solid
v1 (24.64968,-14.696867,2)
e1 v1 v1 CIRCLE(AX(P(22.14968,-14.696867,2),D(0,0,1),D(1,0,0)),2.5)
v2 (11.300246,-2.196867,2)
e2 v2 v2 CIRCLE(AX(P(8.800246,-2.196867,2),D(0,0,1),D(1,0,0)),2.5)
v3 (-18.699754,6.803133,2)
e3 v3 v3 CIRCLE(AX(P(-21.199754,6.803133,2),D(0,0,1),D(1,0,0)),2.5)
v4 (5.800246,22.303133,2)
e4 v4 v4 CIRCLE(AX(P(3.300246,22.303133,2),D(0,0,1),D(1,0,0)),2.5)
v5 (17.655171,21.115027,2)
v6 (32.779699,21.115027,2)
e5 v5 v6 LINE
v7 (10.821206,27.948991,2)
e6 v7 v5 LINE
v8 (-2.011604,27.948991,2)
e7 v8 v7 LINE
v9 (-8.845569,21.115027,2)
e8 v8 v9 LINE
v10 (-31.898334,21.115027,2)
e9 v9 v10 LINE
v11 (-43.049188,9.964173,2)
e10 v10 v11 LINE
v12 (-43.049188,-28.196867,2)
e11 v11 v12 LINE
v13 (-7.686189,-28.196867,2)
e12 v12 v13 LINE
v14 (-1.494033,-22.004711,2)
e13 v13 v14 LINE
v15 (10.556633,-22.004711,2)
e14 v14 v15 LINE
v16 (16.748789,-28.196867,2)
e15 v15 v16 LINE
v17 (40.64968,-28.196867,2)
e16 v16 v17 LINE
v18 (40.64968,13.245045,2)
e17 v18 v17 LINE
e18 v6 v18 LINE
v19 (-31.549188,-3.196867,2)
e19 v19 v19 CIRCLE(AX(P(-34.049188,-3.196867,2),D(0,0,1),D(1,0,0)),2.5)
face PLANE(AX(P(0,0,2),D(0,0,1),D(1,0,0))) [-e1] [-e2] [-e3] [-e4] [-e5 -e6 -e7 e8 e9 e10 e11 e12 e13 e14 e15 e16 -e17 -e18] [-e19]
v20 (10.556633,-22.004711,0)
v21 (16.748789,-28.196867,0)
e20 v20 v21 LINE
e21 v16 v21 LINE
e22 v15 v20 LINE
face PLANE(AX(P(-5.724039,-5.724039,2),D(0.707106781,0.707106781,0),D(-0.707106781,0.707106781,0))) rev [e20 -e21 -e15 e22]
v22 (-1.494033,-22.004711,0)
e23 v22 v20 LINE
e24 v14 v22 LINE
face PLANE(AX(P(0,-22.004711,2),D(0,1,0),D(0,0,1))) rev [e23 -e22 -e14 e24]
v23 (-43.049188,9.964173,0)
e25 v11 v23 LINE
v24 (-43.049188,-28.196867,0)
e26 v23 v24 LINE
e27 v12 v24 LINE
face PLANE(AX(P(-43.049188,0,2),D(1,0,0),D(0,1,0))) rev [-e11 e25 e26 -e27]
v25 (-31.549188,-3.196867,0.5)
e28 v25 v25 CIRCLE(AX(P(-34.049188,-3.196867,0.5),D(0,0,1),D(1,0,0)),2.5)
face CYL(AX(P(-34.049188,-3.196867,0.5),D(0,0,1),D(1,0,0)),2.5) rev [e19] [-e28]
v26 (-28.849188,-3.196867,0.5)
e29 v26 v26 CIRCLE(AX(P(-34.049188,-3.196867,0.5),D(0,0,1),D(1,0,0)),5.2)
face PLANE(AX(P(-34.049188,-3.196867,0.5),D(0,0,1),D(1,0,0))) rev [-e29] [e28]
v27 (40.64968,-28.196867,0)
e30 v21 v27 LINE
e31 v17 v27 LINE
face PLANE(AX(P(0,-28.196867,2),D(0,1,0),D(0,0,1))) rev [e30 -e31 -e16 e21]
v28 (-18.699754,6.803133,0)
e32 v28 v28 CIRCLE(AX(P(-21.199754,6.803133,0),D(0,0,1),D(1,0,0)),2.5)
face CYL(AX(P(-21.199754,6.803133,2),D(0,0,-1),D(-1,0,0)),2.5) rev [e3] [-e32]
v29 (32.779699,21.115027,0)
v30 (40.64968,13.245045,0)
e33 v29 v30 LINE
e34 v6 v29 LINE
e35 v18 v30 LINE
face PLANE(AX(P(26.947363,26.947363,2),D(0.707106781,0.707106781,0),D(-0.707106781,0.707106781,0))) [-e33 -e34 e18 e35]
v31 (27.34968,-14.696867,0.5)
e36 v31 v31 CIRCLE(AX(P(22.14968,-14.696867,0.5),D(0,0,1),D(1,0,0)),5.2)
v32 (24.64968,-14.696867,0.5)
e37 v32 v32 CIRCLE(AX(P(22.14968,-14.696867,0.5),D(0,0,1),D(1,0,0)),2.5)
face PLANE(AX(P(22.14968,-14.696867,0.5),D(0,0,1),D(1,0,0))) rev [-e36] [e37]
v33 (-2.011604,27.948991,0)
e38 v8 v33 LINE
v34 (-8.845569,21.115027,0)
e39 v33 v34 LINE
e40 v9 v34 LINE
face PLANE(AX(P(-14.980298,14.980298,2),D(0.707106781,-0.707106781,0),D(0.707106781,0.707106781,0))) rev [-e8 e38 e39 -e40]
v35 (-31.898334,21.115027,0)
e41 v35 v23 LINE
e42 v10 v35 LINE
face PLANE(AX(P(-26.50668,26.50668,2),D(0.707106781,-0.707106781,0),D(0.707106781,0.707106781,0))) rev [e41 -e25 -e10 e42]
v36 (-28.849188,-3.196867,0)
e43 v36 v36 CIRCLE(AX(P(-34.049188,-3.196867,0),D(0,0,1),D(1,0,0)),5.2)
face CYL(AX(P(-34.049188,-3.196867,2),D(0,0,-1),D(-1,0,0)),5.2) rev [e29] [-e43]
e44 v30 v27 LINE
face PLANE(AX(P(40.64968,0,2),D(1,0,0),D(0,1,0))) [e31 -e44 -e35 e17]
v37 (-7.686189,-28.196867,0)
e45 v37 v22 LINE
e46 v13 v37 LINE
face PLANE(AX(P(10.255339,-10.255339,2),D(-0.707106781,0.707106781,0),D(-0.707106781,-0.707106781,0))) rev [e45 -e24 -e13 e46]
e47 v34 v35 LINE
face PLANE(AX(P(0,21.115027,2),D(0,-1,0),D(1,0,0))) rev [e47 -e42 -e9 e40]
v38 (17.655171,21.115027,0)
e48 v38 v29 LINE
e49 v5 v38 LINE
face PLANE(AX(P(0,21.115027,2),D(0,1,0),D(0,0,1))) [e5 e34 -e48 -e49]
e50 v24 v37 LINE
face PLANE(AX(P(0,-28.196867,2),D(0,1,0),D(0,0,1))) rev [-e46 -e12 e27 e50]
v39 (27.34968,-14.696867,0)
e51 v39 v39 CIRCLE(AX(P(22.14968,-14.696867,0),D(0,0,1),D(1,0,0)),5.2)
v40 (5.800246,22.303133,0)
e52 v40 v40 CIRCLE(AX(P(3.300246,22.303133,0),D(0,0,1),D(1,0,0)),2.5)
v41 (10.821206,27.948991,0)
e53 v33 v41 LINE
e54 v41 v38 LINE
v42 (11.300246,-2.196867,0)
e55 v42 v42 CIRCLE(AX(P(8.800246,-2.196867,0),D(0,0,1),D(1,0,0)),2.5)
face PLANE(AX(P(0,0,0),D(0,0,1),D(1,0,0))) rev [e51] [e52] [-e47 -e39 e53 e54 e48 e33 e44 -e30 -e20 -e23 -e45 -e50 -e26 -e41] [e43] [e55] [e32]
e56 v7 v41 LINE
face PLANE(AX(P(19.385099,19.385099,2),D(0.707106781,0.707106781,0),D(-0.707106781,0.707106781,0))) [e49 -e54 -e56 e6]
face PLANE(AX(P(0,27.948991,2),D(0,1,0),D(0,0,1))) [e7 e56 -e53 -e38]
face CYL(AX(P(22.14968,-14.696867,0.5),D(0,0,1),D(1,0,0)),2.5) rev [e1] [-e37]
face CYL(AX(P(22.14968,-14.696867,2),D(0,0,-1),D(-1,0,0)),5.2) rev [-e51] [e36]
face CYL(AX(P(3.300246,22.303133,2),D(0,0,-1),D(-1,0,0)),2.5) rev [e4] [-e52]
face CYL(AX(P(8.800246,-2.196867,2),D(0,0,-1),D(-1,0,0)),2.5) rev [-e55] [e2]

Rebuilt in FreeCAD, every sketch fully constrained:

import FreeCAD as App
import Part
import Sketcher
from FreeCAD import Vector
Q = App.Units.Quantity


def add_polygon(sketch, points):
    """Adds a closed chain of lines whose ends are joined by coincident constraints."""
    first, n = sketch.GeometryCount, len(points)
    for a, b in zip(points, points[1:] + points[:1]):
        sketch.addGeometry(Part.LineSegment(App.Vector(*a, 0), App.Vector(*b, 0)), False)
    for i in range(n):
        sketch.addConstraint(Sketcher.Constraint("Coincident", first + i, 2, first + (i + 1) % n, 1))

doc = App.newDocument("Part")
body = doc.addObject("PartDesign::Body", "Body")

# Sketch on XY plane
sketch1 = body.newObject("Sketcher::SketchObject", "Sketch")
sketch1.AttachmentSupport = (doc.getObject("XY_Plane"), [""])
sketch1.MapMode = "FlatFace"
add_polygon(sketch1, [(32.8, 21.1), (17.7, 21.1), (10.8, 27.9), (-2, 27.9), (-8.8, 21.1), (-31.9, 21.1), (-43, 10), (-43, -28.2), (-7.7, -28.2), (-1.5, -22), (10.6, -22), (16.7, -28.2), (40.6, -28.2), (40.6, 13.2)])  # lines 0-13
sketch1.addGeometry(Part.Circle(Vector(22.1, -14.7, 0), Vector(0, 0, 1), 5.2), False)  # 14
sketch1.addGeometry(Part.Circle(Vector(8.8, -2.2, 0), Vector(0, 0, 1), 2.5), False)  # 15
sketch1.addGeometry(Part.Circle(Vector(-34, -3.2, 0), Vector(0, 0, 1), 5.2), False)  # 16
sketch1.addGeometry(Part.Circle(Vector(3.3, 22.3, 0), Vector(0, 0, 1), 2.5), False)  # 17
sketch1.addGeometry(Part.Circle(Vector(-21.2, 6.8, 0), Vector(0, 0, 1), 2.5), False)  # 18
sketch1.addConstraint([
    Sketcher.Constraint("Horizontal", 0),
    Sketcher.Constraint("Horizontal", 2),
    Sketcher.Constraint("Horizontal", 4),
    Sketcher.Constraint("Vertical", 6),
    Sketcher.Constraint("Horizontal", 7),
    Sketcher.Constraint("Horizontal", 9),
    Sketcher.Constraint("Horizontal", 11),
    Sketcher.Constraint("Vertical", 12),
    Sketcher.Constraint("Equal", 14, 16),
    Sketcher.Constraint("Equal", 15, 17),
    Sketcher.Constraint("Equal", 17, 18),
    Sketcher.Constraint("Perpendicular", 1, 3),
    Sketcher.Constraint("Parallel", 3, 5),
    Sketcher.Constraint("Parallel", 5, 8),
    Sketcher.Constraint("Perpendicular", 8, 10),
    Sketcher.Constraint("Parallel", 10, 13),
    Sketcher.Constraint("Horizontal", 0, 2, 3, 2),
    Sketcher.Constraint("Horizontal", 7, 2, 10, 2),
    Sketcher.Constraint("Equal", 1, 3),
    Sketcher.Constraint("Diameter", 15, Q("5 mm")),
    Sketcher.Constraint("Diameter", 14, Q("10.4 mm")),
    Sketcher.Constraint("DistanceY", 16, 3, 15, 3, Q("1 mm")),
    Sketcher.Constraint("DistanceY", 14, 3, 17, 3, Q("37 mm")),
    Sketcher.Constraint("DistanceY", 16, 3, 18, 3, Q("10 mm")),
    Sketcher.Constraint("DistanceX", 18, 3, 15, 3, Q("30 mm")),
    Sketcher.Constraint("DistanceX", 5, 2, 16, 3, Q("9 mm")),
    Sketcher.Constraint("DistanceY", 6, 2, 16, 3, Q("25 mm")),
    Sketcher.Constraint("DistanceY", 14, 3, 15, 3, Q("12.5 mm")),
    Sketcher.Constraint("DistanceX", 17, 3, 15, 3, Q("5.5 mm")),
    Sketcher.Constraint("DistanceX", 14, 3, 11, 2, Q("18.5 mm")),
    Sketcher.Constraint("DistanceX", 7, 1, 7, 2, Q("35.362998 mm")),
    Sketcher.Constraint("DistanceX", 2, 2, 2, 1, Q("12.832811 mm")),
    Sketcher.Constraint("DistanceX", 11, 1, 11, 2, Q("23.900891 mm")),
    Sketcher.Constraint("DistanceY", 6, 2, 6, 1, Q("38.16104 mm")),
    Sketcher.Constraint("DistanceX", -1, 1, 13, 2, Q("32.779699 mm")),
    Sketcher.Constraint("Distance", 5, Q("15.769689 mm")),
    Sketcher.Constraint("Distance", 8, Q("8.757031 mm")),
    Sketcher.Constraint("DistanceX", 0, 2, 0, 1, Q("15.124528 mm")),
    Sketcher.Constraint("DistanceX", 4, 2, 4, 1, Q("23.052765 mm")),
    Sketcher.Constraint("DistanceX", 9, 1, 9, 2, Q("12.050667 mm")),
    Sketcher.Constraint("DistanceY", 12, 1, 12, 2, Q("41.441913 mm")),
    Sketcher.Constraint("DistanceY", -1, 1, 1, 2, Q("27.948991 mm")),
    Sketcher.Constraint("DistanceX", 17, 3, 1, 2, Q("7.52096 mm")),
])
pad1 = body.newObject("PartDesign::Pad", "Pad")
pad1.Profile = sketch1
pad1.Length = 2

# Sketch on XY plane
sketch2 = body.newObject("Sketcher::SketchObject", "Sketch001")
sketch2.AttachmentSupport = (doc.getObject("XY_Plane"), [""])
sketch2.MapMode = "FlatFace"
sketch2.AttachmentOffset = App.Placement(Vector(0, 0, 0.5), App.Rotation())
sketch2.addGeometry([
    Part.Circle(Vector(-34, -3.2, 0), Vector(0, 0, 1), 5.2),
    Part.Circle(Vector(-34, -3.2, 0), Vector(0, 0, 1), 2.5),
    Part.Circle(Vector(22.1, -14.7, 0), Vector(0, 0, 1), 5.2),
    Part.Circle(Vector(22.1, -14.7, 0), Vector(0, 0, 1), 2.5),
], False)
sketch2.addConstraint([
    Sketcher.Constraint("Coincident", 1, 3, 0, 3),
    Sketcher.Constraint("Coincident", 3, 3, 2, 3),
    Sketcher.Constraint("Equal", 0, 2),
    Sketcher.Constraint("Equal", 1, 3),
    Sketcher.Constraint("Diameter", 1, Q("5 mm")),
    Sketcher.Constraint("Diameter", 0, Q("10.4 mm")),
    Sketcher.Constraint("DistanceY", 2, 3, 0, 3, Q("11.5 mm")),
    Sketcher.Constraint("DistanceX", -1, 1, 2, 3, Q("22.14968 mm")),
    Sketcher.Constraint("DistanceX", 0, 3, -1, 1, Q("34.049188 mm")),
    Sketcher.Constraint("DistanceY", 0, 3, -1, 1, Q("3.196867 mm")),
])
pad2 = body.newObject("PartDesign::Pad", "Pad001")
pad2.Profile = sketch2
pad2.Length = 1.5

doc.recompute()
